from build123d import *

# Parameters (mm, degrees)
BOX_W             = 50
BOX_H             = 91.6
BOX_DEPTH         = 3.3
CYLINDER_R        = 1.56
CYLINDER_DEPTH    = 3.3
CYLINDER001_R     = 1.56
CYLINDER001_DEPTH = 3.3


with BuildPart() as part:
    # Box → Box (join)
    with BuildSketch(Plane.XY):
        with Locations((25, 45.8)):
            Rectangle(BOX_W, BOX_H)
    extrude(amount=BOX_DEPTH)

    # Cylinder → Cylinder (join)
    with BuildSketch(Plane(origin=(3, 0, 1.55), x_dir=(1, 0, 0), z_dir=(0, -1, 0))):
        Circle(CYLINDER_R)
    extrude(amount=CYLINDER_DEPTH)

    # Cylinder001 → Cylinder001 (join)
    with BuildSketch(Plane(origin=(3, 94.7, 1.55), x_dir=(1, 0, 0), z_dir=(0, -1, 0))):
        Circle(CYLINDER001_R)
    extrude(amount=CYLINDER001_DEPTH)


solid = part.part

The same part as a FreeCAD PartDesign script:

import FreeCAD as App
import Part
import Sketcher
from FreeCAD import Vector

doc = App.newDocument("Part")
body = doc.addObject("PartDesign::Body", "Body")

# Sketch on XY plane
sketch1 = doc.addObject("Sketcher::SketchObject", "Sketch")
body.addObject(sketch1)
sketch1.AttachmentSupport = (doc.XY_Plane, [""])
sketch1.MapMode = "FlatFace"
sketch1.addGeometry([
    Part.LineSegment(Vector(0, 91.6, 0), Vector(0, 0, 0)),
    Part.LineSegment(Vector(0, 0, 0), Vector(50, 0, 0)),
    Part.LineSegment(Vector(50, 0, 0), Vector(50, 91.6, 0)),
    Part.LineSegment(Vector(50, 91.6, 0), Vector(0, 91.6, 0)),
], False)
sketch1.addConstraint([
    Sketcher.Constraint("Coincident", 0, 2, 1, 1),
    Sketcher.Constraint("Coincident", 1, 2, 2, 1),
    Sketcher.Constraint("Coincident", 2, 2, 3, 1),
    Sketcher.Constraint("Coincident", 3, 2, 0, 1),
    Sketcher.Constraint("Vertical", 0),
    Sketcher.Constraint("Horizontal", 1),
    Sketcher.Constraint("Vertical", 2),
    Sketcher.Constraint("Horizontal", 3),
    Sketcher.Constraint("Coincident", 0, 2, -1, 1),
    Sketcher.Constraint("DistanceX", 1, 1, 1, 2, 50.0),
    Sketcher.Constraint("DistanceY", 0, 2, 0, 1, 91.6),
])
pad1 = doc.addObject("PartDesign::Pad", "Pad")
body.addObject(pad1)
pad1.Profile = sketch1
pad1.Length = 3.3

# Sketch on XZ plane
sketch2 = doc.addObject("Sketcher::SketchObject", "Sketch001")
body.addObject(sketch2)
sketch2.AttachmentSupport = (doc.XZ_Plane, [""])
sketch2.MapMode = "FlatFace"
sketch2.addGeometry(Part.Circle(Vector(3, 1.55, 0), Vector(0, 0, 1), 1.56), False)
sketch2.addConstraint([
    Sketcher.Constraint("Diameter", 0, 3.12),
    Sketcher.Constraint("DistanceX", -1, 1, 0, 3, 3.0),
    Sketcher.Constraint("DistanceY", -1, 1, 0, 3, 1.55),
])
pad2 = doc.addObject("PartDesign::Pad", "Pad001")
body.addObject(pad2)
pad2.Profile = sketch2
pad2.Length = 3.3

# Sketch on XZ plane
sketch3 = doc.addObject("Sketcher::SketchObject", "Sketch002")
body.addObject(sketch3)
sketch3.AttachmentSupport = (doc.XZ_Plane, [""])
sketch3.MapMode = "FlatFace"
sketch3.AttachmentOffset = App.Placement(Vector(0, 0, -94.7), App.Rotation())
sketch3.addGeometry(Part.Circle(Vector(3, 1.55, 0), Vector(0, 0, 1), 1.56), False)
sketch3.addConstraint([
    Sketcher.Constraint("Diameter", 0, 3.12),
    Sketcher.Constraint("DistanceX", -1, 1, 0, 3, 3.0),
    Sketcher.Constraint("DistanceY", -1, 1, 0, 3, 1.55),
])
pad3 = doc.addObject("PartDesign::Pad", "Pad002")
body.addObject(pad3)
pad3.Profile = sketch3
pad3.Length = 3.3

doc.recompute()
